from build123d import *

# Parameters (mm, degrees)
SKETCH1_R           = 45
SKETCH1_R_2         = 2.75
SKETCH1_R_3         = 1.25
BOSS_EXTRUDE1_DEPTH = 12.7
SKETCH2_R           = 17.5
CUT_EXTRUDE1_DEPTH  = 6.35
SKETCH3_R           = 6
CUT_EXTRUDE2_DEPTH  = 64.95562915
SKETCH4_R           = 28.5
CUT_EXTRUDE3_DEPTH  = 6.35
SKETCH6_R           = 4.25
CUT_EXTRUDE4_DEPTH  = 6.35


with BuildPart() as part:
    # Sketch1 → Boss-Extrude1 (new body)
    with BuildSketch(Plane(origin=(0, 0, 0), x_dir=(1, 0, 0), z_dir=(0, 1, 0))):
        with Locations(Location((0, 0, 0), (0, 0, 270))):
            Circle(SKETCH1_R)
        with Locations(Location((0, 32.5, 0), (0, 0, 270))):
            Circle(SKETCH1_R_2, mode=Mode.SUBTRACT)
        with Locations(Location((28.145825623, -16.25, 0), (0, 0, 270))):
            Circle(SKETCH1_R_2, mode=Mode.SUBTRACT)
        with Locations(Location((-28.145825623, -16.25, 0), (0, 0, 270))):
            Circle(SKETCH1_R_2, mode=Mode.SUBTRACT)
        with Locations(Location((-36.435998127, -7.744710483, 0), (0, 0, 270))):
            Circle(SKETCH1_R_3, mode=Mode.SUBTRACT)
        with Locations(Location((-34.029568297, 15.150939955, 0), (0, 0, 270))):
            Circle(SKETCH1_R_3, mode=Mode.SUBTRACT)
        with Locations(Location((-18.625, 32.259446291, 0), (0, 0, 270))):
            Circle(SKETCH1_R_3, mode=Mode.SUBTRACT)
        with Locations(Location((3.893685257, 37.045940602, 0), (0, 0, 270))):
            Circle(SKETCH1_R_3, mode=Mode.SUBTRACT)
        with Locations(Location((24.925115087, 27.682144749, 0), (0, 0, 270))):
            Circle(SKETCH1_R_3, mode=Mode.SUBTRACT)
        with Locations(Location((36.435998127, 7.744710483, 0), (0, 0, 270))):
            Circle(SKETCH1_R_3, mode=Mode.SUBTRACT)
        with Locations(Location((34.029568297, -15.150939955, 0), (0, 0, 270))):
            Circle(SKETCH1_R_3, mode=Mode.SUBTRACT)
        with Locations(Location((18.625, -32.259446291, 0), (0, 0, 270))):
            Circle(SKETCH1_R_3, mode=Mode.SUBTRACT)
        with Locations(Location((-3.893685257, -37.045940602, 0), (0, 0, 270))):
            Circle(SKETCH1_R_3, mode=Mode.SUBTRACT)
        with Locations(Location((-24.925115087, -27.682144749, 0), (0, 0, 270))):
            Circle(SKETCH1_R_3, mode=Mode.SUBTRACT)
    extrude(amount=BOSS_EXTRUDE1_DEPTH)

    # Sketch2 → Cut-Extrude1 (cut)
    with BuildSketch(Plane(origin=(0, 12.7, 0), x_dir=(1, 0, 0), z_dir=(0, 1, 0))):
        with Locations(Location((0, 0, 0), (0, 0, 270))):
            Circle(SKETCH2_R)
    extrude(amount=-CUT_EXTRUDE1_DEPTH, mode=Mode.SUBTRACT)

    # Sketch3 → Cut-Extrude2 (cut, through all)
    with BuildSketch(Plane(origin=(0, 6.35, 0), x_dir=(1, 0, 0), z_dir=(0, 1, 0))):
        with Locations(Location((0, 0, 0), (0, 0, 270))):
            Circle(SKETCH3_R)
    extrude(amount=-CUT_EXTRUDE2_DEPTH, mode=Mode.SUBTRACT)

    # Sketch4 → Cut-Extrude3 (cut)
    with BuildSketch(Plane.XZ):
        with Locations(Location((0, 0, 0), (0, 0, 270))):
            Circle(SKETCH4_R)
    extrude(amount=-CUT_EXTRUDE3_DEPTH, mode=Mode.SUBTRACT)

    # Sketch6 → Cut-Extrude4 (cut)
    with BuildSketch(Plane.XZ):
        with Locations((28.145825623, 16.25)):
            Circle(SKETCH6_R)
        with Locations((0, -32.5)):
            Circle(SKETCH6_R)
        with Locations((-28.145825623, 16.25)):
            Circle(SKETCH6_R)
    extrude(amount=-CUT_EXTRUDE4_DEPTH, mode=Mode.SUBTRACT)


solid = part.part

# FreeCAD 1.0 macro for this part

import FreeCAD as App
import Part
import Sketcher
from FreeCAD import Vector
Q = App.Units.Quantity

doc = App.newDocument("Part")
params = doc.addObject("Spreadsheet::Sheet", "Params")
for row, (alias, value) in enumerate([
    ("sketch1_diameter", "90 mm"),
    ("sketch1_diameter2", "2.5 mm"),
    ("sketch1_diameter3", "5.5 mm"),
    ("pad1_length", "12.7 mm"),
    ("sketch2_diameter", "35 mm"),
    ("pocket1_length", "6.35 mm"),
    ("sketch3_diameter", "12 mm"),
    ("sketch4_diameter", "57 mm"),
    ("pocket3_length", "6.35 mm"),
    ("sketch5_diameter", "8.5 mm"),
    ("pocket4_length", "6.35 mm"),
], start=1):
    params.set(f"A{row}", alias)
    params.set(f"B{row}", "=" + value)
    params.setAlias(f"B{row}", alias)

body = doc.addObject("PartDesign::Body", "Body")

# Sketch on XZ plane
sketch1 = body.newObject("Sketcher::SketchObject", "Sketch")
sketch1.AttachmentSupport = (doc.getObject("XZ_Plane"), [""])
sketch1.MapMode = "FlatFace"
sketch1.addGeometry([
    Part.Circle(Vector(0, 0, 0), Vector(0, 0, 1), 45),  # 0
    Part.Circle(Vector(-34.029568, -15.15094, 0), Vector(0, 0, 1), 1.25),  # 1
    Part.Circle(Vector(-18.625, -32.259446, 0), Vector(0, 0, 1), 1.25),  # 2
    Part.Circle(Vector(0, -32.5, 0), Vector(0, 0, 1), 2.75),  # 3
    Part.Circle(Vector(-36.435998, 7.74471, 0), Vector(0, 0, 1), 1.25),  # 4
    Part.Circle(Vector(-28.145826, 16.25, 0), Vector(0, 0, 1), 2.75),  # 5
    Part.Circle(Vector(-24.925115, 27.682145, 0), Vector(0, 0, 1), 1.25),  # 6
    Part.Circle(Vector(-3.893685, 37.045941, 0), Vector(0, 0, 1), 1.25),  # 7
    Part.Circle(Vector(3.893685, -37.045941, 0), Vector(0, 0, 1), 1.25),  # 8
    Part.Circle(Vector(24.925115, -27.682145, 0), Vector(0, 0, 1), 1.25),  # 9
    Part.Circle(Vector(36.435998, -7.74471, 0), Vector(0, 0, 1), 1.25),  # 10
    Part.Circle(Vector(18.625, 32.259446, 0), Vector(0, 0, 1), 1.25),  # 11
    Part.Circle(Vector(28.145826, 16.25, 0), Vector(0, 0, 1), 2.75),  # 12
    Part.Circle(Vector(34.029568, 15.15094, 0), Vector(0, 0, 1), 1.25),  # 13
], False)
sketch1.addConstraint([
    Sketcher.Constraint("Coincident", 0, 3, -1, 1),
    Sketcher.Constraint("Equal", 1, 2),
    Sketcher.Constraint("Equal", 2, 4),
    Sketcher.Constraint("Equal", 3, 5),
    Sketcher.Constraint("Equal", 4, 6),
    Sketcher.Constraint("Equal", 6, 7),
    Sketcher.Constraint("Equal", 7, 8),
    Sketcher.Constraint("Equal", 8, 9),
    Sketcher.Constraint("Equal", 9, 10),
    Sketcher.Constraint("Equal", 10, 11),
    Sketcher.Constraint("Equal", 5, 12),
    Sketcher.Constraint("Equal", 11, 13),
    Sketcher.Constraint("Symmetric", 7, 3, 8, 3, -1, 1),
    Sketcher.Constraint("Symmetric", 6, 3, 9, 3, -1, 1),
    Sketcher.Constraint("Symmetric", 4, 3, 10, 3, -1, 1),
    Sketcher.Constraint("Symmetric", 2, 3, 11, 3, -1, 1),
    Sketcher.Constraint("Symmetric", 1, 3, 13, 3, -1, 1),
    Sketcher.Constraint("Symmetric", 5, 3, 12, 3, -2),
    Sketcher.Constraint("PointOnObject", 3, 3, -2),
    Sketcher.Constraint("Diameter", 0, Q("90 mm")),
    Sketcher.Constraint("Diameter", 1, Q("2.5 mm")),
    Sketcher.Constraint("Diameter", 3, Q("5.5 mm")),
    Sketcher.Constraint("DistanceY", 3, 3, -1, 1, Q("32.5 mm")),
    Sketcher.Constraint("DistanceY", -1, 1, 5, 3, Q("16.25 mm")),
    Sketcher.Constraint("DistanceX", 2, 3, -1, 1, Q("18.625 mm")),
    Sketcher.Constraint("DistanceX", 4, 3, -1, 1, Q("36.435998 mm")),
    Sketcher.Constraint("DistanceY", 8, 3, 1, 3, Q("21.895001 mm")),
    Sketcher.Constraint("DistanceY", 2, 3, 9, 3, Q("4.577302 mm")),
    Sketcher.Constraint("DistanceX", 1, 3, -1, 1, Q("34.029568 mm")),
    Sketcher.Constraint("DistanceY", 1, 3, -1, 1, Q("15.15094 mm")),
    Sketcher.Constraint("DistanceY", -1, 1, 4, 3, Q("7.74471 mm")),
    Sketcher.Constraint("DistanceX", 5, 3, 6, 3, Q("3.220711 mm")),
    Sketcher.Constraint("DistanceY", 2, 3, 6, 3, Q("59.941591 mm")),
    Sketcher.Constraint("DistanceX", 6, 3, 7, 3, Q("21.03143 mm")),
    Sketcher.Constraint("DistanceX", 7, 3, 12, 3, Q("32.039511 mm")),
])
sketch1.setExpression("Constraints[19]", "Params.sketch1_diameter")
sketch1.setExpression("Constraints[20]", "Params.sketch1_diameter2")
sketch1.setExpression("Constraints[21]", "Params.sketch1_diameter3")
pad1 = body.newObject("PartDesign::Pad", "Pad")
pad1.Profile = sketch1
pad1.setExpression("Length", "Params.pad1_length")
pad1.Reversed = True

# Sketch on XZ plane
sketch2 = body.newObject("Sketcher::SketchObject", "Sketch001")
sketch2.AttachmentSupport = (doc.getObject("XZ_Plane"), [""])
sketch2.MapMode = "FlatFace"
sketch2.AttachmentOffset = App.Placement(Vector(0, 0, -12.7), App.Rotation())
sketch2.addGeometry(Part.Circle(Vector(0, 0, 0), Vector(0, 0, 1), 17.5), False)
sketch2.addConstraint([
    Sketcher.Constraint("Coincident", 0, 3, -1, 1),
    Sketcher.Constraint("Diameter", 0, Q("35 mm")),
])
sketch2.setExpression("Constraints[1]", "Params.sketch2_diameter")
pocket1 = body.newObject("PartDesign::Pocket", "Pocket")
pocket1.Profile = sketch2
pocket1.setExpression("Length", "Params.pocket1_length")
pocket1.Reversed = True

# Sketch on XZ plane
sketch3 = body.newObject("Sketcher::SketchObject", "Sketch002")
sketch3.AttachmentSupport = (doc.getObject("XZ_Plane"), [""])
sketch3.MapMode = "FlatFace"
sketch3.AttachmentOffset = App.Placement(Vector(0, 0, -6.35), App.Rotation())
sketch3.addGeometry(Part.Circle(Vector(0, 0, 0), Vector(0, 0, 1), 6), False)
sketch3.addConstraint([
    Sketcher.Constraint("Coincident", 0, 3, -1, 1),
    Sketcher.Constraint("Diameter", 0, Q("12 mm")),
])
sketch3.setExpression("Constraints[1]", "Params.sketch3_diameter")
pocket2 = body.newObject("PartDesign::Pocket", "Pocket001")
pocket2.Profile = sketch3
pocket2.Type = "ThroughAll"
pocket2.Reversed = True

# Sketch on XZ plane
sketch4 = body.newObject("Sketcher::SketchObject", "Sketch003")
sketch4.AttachmentSupport = (doc.getObject("XZ_Plane"), [""])
sketch4.MapMode = "FlatFace"
sketch4.addGeometry(Part.Circle(Vector(0, 0, 0), Vector(0, 0, 1), 28.5), False)
sketch4.addConstraint([
    Sketcher.Constraint("Coincident", 0, 3, -1, 1),
    Sketcher.Constraint("Diameter", 0, Q("57 mm")),
])
sketch4.setExpression("Constraints[1]", "Params.sketch4_diameter")
pocket3 = body.newObject("PartDesign::Pocket", "Pocket002")
pocket3.Profile = sketch4
pocket3.setExpression("Length", "Params.pocket3_length")

# Sketch on XZ plane
sketch5 = body.newObject("Sketcher::SketchObject", "Sketch004")
sketch5.AttachmentSupport = (doc.getObject("XZ_Plane"), [""])
sketch5.MapMode = "FlatFace"
sketch5.addGeometry([
    Part.Circle(Vector(28.145826, 16.25, 0), Vector(0, 0, 1), 4.25),
    Part.Circle(Vector(0, -32.5, 0), Vector(0, 0, 1), 4.25),
    Part.Circle(Vector(-28.145826, 16.25, 0), Vector(0, 0, 1), 4.25),
], False)
sketch5.addConstraint([
    Sketcher.Constraint("Equal", 0, 1),
    Sketcher.Constraint("Equal", 1, 2),
    Sketcher.Constraint("Symmetric", 0, 3, 2, 3, -2),
    Sketcher.Constraint("PointOnObject", 1, 3, -2),
    Sketcher.Constraint("Diameter", 0, Q("8.5 mm")),
    Sketcher.Constraint("DistanceY", 1, 3, -1, 1, Q("32.5 mm")),
    Sketcher.Constraint("DistanceY", -1, 1, 0, 3, Q("16.25 mm")),
    Sketcher.Constraint("DistanceX", 2, 3, 0, 3, Q("56.291651 mm")),
])
sketch5.setExpression("Constraints[4]", "Params.sketch5_diameter")
pocket4 = body.newObject("PartDesign::Pocket", "Pocket003")
pocket4.Profile = sketch5
pocket4.setExpression("Length", "Params.pocket4_length")

doc.recompute()
